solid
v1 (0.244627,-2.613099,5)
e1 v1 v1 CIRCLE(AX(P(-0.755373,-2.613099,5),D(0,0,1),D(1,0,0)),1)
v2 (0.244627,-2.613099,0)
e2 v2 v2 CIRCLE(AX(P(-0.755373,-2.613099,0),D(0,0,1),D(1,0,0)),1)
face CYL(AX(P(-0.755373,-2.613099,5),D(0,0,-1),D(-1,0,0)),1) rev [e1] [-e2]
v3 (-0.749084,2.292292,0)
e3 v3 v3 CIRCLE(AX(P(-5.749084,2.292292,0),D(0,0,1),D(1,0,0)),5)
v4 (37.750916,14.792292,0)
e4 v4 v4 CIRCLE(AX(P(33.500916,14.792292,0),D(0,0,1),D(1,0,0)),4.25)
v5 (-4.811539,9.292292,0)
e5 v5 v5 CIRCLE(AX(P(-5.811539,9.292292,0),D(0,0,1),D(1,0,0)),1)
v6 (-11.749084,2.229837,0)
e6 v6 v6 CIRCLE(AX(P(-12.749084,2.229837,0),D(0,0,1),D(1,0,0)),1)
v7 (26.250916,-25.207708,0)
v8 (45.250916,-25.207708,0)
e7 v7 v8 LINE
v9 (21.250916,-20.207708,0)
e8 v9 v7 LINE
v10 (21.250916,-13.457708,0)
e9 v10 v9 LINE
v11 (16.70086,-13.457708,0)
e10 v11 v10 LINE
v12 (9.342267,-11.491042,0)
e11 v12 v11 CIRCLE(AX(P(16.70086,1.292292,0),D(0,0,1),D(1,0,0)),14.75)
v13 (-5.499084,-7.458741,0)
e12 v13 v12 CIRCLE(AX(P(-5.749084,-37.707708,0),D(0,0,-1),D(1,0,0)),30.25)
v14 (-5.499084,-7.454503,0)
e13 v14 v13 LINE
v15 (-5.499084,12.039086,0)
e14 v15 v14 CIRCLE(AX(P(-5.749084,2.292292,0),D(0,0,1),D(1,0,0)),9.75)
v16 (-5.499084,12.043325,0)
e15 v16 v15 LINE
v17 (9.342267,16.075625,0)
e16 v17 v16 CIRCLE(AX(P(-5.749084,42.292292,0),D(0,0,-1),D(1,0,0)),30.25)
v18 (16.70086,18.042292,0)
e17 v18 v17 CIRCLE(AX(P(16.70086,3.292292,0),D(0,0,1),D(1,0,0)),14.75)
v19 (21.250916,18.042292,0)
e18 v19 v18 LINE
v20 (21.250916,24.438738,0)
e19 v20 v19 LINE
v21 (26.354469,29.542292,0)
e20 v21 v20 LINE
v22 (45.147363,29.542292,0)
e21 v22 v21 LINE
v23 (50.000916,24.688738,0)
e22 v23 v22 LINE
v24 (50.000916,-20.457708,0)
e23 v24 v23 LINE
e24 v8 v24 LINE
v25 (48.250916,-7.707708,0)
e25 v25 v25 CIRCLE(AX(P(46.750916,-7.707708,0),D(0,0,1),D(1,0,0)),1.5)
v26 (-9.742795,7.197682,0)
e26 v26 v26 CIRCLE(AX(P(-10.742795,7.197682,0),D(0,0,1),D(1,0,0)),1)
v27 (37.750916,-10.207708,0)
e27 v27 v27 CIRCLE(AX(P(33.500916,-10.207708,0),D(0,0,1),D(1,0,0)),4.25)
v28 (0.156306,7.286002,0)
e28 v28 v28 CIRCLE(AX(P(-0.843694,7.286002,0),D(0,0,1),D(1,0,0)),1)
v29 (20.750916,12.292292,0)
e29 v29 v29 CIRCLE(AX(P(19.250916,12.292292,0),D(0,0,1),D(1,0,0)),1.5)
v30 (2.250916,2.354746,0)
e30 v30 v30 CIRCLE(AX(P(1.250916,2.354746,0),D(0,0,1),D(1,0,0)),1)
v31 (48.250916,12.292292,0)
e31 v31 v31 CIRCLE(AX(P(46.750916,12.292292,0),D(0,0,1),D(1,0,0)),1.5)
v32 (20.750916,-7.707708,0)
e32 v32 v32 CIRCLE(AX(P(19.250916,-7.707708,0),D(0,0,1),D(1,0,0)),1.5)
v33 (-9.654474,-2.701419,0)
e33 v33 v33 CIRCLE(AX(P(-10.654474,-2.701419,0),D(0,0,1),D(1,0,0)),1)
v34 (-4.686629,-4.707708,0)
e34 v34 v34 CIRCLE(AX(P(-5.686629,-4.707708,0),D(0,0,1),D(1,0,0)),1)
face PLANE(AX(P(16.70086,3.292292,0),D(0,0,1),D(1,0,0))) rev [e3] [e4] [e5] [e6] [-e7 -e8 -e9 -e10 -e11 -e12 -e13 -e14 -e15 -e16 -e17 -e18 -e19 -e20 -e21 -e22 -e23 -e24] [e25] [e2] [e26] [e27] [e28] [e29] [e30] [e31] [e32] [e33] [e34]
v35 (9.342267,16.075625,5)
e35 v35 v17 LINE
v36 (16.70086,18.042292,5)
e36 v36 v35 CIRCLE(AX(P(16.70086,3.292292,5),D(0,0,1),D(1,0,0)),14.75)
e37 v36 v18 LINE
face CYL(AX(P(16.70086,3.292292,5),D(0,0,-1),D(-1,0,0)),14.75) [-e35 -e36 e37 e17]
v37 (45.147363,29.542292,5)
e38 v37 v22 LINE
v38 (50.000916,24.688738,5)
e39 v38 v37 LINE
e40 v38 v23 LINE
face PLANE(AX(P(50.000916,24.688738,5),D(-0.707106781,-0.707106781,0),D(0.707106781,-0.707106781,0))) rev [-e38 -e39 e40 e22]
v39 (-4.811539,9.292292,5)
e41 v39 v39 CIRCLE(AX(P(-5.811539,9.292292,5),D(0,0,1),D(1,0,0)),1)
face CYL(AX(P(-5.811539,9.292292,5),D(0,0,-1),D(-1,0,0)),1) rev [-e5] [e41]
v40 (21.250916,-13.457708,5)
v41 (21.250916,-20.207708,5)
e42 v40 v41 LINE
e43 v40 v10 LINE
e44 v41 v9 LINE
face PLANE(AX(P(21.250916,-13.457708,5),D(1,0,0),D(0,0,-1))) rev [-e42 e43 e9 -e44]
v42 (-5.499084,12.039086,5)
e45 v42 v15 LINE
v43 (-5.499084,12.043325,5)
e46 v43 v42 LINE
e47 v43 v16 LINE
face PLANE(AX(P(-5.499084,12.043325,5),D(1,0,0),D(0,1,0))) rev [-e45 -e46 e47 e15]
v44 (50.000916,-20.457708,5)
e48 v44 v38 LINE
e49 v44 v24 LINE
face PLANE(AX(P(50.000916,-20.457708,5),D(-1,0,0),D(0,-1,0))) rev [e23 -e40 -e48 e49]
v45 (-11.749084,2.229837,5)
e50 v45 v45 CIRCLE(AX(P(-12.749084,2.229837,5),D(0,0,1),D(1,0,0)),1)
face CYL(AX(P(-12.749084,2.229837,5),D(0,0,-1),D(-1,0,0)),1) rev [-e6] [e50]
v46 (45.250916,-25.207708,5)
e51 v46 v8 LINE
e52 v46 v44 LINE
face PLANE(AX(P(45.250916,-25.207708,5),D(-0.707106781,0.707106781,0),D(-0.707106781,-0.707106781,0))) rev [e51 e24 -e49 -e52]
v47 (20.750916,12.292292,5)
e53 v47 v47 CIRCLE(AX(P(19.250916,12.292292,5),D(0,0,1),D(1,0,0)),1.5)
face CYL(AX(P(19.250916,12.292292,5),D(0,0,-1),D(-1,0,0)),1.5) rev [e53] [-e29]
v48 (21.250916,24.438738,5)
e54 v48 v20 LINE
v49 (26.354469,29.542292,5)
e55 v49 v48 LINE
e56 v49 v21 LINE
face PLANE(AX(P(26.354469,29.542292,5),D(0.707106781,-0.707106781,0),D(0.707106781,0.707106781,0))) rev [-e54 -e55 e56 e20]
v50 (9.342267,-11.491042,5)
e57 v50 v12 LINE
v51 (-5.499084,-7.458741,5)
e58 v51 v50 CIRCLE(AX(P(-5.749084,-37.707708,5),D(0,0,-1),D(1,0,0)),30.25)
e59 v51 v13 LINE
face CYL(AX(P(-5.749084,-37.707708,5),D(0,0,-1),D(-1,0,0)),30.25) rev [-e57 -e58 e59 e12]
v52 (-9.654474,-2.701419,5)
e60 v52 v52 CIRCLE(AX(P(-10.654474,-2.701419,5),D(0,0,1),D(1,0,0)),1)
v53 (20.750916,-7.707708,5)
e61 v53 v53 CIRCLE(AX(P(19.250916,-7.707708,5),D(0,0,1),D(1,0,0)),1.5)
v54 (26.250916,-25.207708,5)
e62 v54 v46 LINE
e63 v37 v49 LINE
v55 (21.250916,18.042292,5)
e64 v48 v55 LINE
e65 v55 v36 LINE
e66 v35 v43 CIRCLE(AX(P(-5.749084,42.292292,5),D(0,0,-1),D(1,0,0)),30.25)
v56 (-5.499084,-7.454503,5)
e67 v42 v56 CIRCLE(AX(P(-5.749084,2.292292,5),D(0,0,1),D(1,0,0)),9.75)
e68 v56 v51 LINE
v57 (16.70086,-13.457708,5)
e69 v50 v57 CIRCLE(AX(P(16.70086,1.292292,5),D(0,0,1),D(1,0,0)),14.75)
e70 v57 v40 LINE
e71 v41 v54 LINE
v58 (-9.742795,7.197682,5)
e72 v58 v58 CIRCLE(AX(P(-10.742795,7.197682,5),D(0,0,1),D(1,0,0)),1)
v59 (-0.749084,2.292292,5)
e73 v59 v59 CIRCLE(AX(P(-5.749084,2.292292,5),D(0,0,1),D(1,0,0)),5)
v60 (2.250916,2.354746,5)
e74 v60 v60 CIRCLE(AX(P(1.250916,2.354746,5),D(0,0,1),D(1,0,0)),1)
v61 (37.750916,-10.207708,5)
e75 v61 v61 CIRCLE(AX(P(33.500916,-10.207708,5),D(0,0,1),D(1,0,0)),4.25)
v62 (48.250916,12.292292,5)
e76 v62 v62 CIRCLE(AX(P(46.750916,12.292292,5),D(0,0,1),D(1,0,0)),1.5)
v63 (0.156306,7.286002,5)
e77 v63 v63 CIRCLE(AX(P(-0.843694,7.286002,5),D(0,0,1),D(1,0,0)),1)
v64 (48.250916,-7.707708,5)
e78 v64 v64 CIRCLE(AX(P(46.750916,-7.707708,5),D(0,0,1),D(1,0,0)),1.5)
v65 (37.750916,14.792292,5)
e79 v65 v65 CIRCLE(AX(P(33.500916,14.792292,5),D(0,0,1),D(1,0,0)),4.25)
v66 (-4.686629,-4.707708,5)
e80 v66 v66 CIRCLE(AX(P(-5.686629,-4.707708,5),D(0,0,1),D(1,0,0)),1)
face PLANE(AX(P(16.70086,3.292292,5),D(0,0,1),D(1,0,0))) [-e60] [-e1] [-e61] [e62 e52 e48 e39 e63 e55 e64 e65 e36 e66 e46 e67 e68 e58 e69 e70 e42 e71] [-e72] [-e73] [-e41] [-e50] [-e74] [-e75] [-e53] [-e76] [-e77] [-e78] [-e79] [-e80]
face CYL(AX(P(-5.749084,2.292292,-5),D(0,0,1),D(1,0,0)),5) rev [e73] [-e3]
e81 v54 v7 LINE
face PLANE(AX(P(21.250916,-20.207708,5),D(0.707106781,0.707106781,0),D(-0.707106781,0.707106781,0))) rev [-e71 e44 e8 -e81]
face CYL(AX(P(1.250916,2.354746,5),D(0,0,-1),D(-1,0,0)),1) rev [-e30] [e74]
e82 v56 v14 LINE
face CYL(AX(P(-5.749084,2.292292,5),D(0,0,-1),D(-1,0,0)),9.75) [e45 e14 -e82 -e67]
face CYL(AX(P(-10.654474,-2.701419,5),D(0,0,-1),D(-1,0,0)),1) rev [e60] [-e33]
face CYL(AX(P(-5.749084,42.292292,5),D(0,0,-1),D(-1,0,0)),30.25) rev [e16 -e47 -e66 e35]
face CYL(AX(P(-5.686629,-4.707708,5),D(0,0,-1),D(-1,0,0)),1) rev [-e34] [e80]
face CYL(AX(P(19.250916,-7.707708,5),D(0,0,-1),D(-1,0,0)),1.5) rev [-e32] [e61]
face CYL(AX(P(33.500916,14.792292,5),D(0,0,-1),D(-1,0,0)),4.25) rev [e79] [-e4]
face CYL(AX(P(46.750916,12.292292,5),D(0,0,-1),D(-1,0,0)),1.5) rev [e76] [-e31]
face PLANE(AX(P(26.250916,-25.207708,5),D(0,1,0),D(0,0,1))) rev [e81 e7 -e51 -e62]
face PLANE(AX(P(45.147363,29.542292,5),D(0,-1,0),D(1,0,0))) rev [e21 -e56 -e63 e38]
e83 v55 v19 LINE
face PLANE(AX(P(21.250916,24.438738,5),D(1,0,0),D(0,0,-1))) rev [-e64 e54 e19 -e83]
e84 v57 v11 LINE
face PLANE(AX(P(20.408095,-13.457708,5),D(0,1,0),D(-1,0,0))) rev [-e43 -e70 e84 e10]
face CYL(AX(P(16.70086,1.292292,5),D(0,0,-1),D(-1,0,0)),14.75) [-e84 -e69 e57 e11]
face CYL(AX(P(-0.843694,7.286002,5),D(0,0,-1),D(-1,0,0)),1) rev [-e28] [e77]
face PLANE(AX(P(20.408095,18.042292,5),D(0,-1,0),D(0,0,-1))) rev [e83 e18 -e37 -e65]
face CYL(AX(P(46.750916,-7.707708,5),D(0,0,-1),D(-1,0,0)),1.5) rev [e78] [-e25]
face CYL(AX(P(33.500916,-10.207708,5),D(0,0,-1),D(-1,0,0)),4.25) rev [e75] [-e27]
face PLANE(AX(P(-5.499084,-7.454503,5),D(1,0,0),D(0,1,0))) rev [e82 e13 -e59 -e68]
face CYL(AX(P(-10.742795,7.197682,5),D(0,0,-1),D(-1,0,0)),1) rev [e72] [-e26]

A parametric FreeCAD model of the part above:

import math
import FreeCAD as App
import Part
import Sketcher
Q = App.Units.Quantity

doc = App.newDocument("Part")
params = doc.addObject("Spreadsheet::Sheet", "Params")
for row, (alias, value) in enumerate([
    ("sketch1_diameter", "2 mm"),
    ("sketch1_diameter2", "3 mm"),
    ("sketch1_diameter3", "8.5 mm"),
    ("sketch1_width", "19 mm"),
    ("sketch1_radius", "14.75 mm"),
    ("pad1_length", "5 mm"),
    ("sketch2_diameter", "10 mm"),
    ("pocket1_length", "10 mm"),
], start=1):
    params.set(f"A{row}", alias)
    params.set(f"B{row}", "=" + value)
    params.setAlias(f"B{row}", alias)

body = doc.addObject("PartDesign::Body", "Body")

sketch1 = body.newObject("Sketcher::SketchObject", "Sketch")
sketch1.AttachmentSupport = (doc.getObject("XY_Plane"), [""])
sketch1.MapMode = "FlatFace"
sketch1.addGeometry([
    Part.LineSegment(App.Vector(45.2509, -25.2077, 0), App.Vector(50.0009, -20.4577, 0)),
    Part.LineSegment(App.Vector(50.0009, -20.4577, 0), App.Vector(50.0009, 24.6887, 0)),
    Part.LineSegment(App.Vector(50.0009, 24.6887, 0), App.Vector(45.1474, 29.5423, 0)),
    Part.LineSegment(App.Vector(45.1474, 29.5423, 0), App.Vector(26.3545, 29.5423, 0)),
    Part.LineSegment(App.Vector(26.3545, 29.5423, 0), App.Vector(21.2509, 24.4387, 0)),
    Part.LineSegment(App.Vector(21.2509, 24.4387, 0), App.Vector(21.2509, 18.0423, 0)),
    Part.LineSegment(App.Vector(21.2509, 18.0423, 0), App.Vector(16.7009, 18.0423, 0)),
    Part.ArcOfCircle(Part.Circle(App.Vector(16.7009, 3.2923, 0), App.Vector(0, 0, 1), 14.75), math.radians(90), math.radians(120)),
    Part.ArcOfCircle(Part.Circle(App.Vector(-5.7491, 42.2923, 0), App.Vector(0, 0, 1), 30.25), math.radians(-90), math.radians(-60)),
    Part.LineSegment(App.Vector(-5.4991, 12.0433, 0), App.Vector(-5.4991, 12.0391, 0)),
    Part.ArcOfCircle(Part.Circle(App.Vector(-5.7491, 2.2923, 0), App.Vector(0, 0, 1), 9.75), math.radians(89), math.radians(271)),
    Part.LineSegment(App.Vector(-5.4991, -7.4545, 0), App.Vector(-5.4991, -7.4587, 0)),
    Part.ArcOfCircle(Part.Circle(App.Vector(-5.7491, -37.7077, 0), App.Vector(0, 0, 1), 30.25), math.radians(60), math.radians(90)),
    Part.ArcOfCircle(Part.Circle(App.Vector(16.7009, 1.2923, 0), App.Vector(0, 0, 1), 14.75), math.radians(-120), math.radians(-90)),
    Part.LineSegment(App.Vector(16.7009, -13.4577, 0), App.Vector(21.2509, -13.4577, 0)),
    Part.LineSegment(App.Vector(21.2509, -13.4577, 0), App.Vector(21.2509, -20.2077, 0)),
    Part.LineSegment(App.Vector(21.2509, -20.2077, 0), App.Vector(26.2509, -25.2077, 0)),
    Part.LineSegment(App.Vector(26.2509, -25.2077, 0), App.Vector(45.2509, -25.2077, 0)),
    Part.Circle(App.Vector(-10.6545, -2.7014, 0), App.Vector(0, 0, 1), 1),
    Part.Circle(App.Vector(-5.6866, -4.7077, 0), App.Vector(0, 0, 1), 1),
    Part.Circle(App.Vector(-0.7554, -2.6131, 0), App.Vector(0, 0, 1), 1),
    Part.Circle(App.Vector(-12.7491, 2.2298, 0), App.Vector(0, 0, 1), 1),
    Part.Circle(App.Vector(19.2509, -7.7077, 0), App.Vector(0, 0, 1), 1.5),
    Part.Circle(App.Vector(33.5009, -10.2077, 0), App.Vector(0, 0, 1), 4.25),
    Part.Circle(App.Vector(46.7509, -7.7077, 0), App.Vector(0, 0, 1), 1.5),
    Part.Circle(App.Vector(-5.7491, 2.2923, 0), App.Vector(0, 0, 1), 1.5),
    Part.Circle(App.Vector(1.2509, 2.3547, 0), App.Vector(0, 0, 1), 1),
    Part.Circle(App.Vector(-10.7428, 7.1977, 0), App.Vector(0, 0, 1), 1),
    Part.Circle(App.Vector(-0.8437, 7.286, 0), App.Vector(0, 0, 1), 1),
    Part.Circle(App.Vector(-5.8115, 9.2923, 0), App.Vector(0, 0, 1), 1),
    Part.Circle(App.Vector(19.2509, 12.2923, 0), App.Vector(0, 0, 1), 1.5),
    Part.Circle(App.Vector(33.5009, 14.7923, 0), App.Vector(0, 0, 1), 4.25),
    Part.Circle(App.Vector(46.7509, 12.2923, 0), App.Vector(0, 0, 1), 1.5),
], False)
sketch1.addConstraint([
    Sketcher.Constraint("Coincident", 0, 2, 1, 1),
    Sketcher.Constraint("Coincident", 1, 2, 2, 1),
    Sketcher.Constraint("Coincident", 2, 2, 3, 1),
    Sketcher.Constraint("Coincident", 3, 2, 4, 1),
    Sketcher.Constraint("Coincident", 4, 2, 5, 1),
    Sketcher.Constraint("Coincident", 5, 2, 6, 1),
    Sketcher.Constraint("Tangent", 6, 2, 7, 1),
    Sketcher.Constraint("Tangent", 7, 2, 8, 2),
    Sketcher.Constraint("Coincident", 8, 1, 9, 1),
    Sketcher.Constraint("Coincident", 9, 2, 10, 1),
    Sketcher.Constraint("Coincident", 10, 2, 11, 1),
    Sketcher.Constraint("Coincident", 11, 2, 12, 2),
    Sketcher.Constraint("Tangent", 12, 1, 13, 1),
    Sketcher.Constraint("Tangent", 13, 2, 14, 1),
    Sketcher.Constraint("Coincident", 14, 2, 15, 1),
    Sketcher.Constraint("Coincident", 15, 2, 16, 1),
    Sketcher.Constraint("Coincident", 16, 2, 17, 1),
    Sketcher.Constraint("Coincident", 17, 2, 0, 1),
    Sketcher.Constraint("Vertical", 1),
    Sketcher.Constraint("Horizontal", 3),
    Sketcher.Constraint("Vertical", 5),
    Sketcher.Constraint("Horizontal", 6),
    Sketcher.Constraint("Vertical", 9),
    Sketcher.Constraint("Vertical", 11),
    Sketcher.Constraint("Horizontal", 14),
    Sketcher.Constraint("Vertical", 15),
    Sketcher.Constraint("Horizontal", 17),
    Sketcher.Constraint("Coincident", 25, 3, 10, 3),
    Sketcher.Constraint("Equal", 8, 12),
    Sketcher.Constraint("Equal", 7, 13),
    Sketcher.Constraint("Equal", 18, 19),
    Sketcher.Constraint("Equal", 19, 20),
    Sketcher.Constraint("Equal", 20, 21),
    Sketcher.Constraint("Equal", 22, 24),
    Sketcher.Constraint("Equal", 24, 25),
    Sketcher.Constraint("Equal", 21, 26),
    Sketcher.Constraint("Equal", 26, 27),
    Sketcher.Constraint("Equal", 27, 28),
    Sketcher.Constraint("Equal", 28, 29),
    Sketcher.Constraint("Equal", 25, 30),
    Sketcher.Constraint("Equal", 23, 31),
    Sketcher.Constraint("Equal", 30, 32),
    Sketcher.Constraint("Perpendicular", 0, 2),
    Sketcher.Constraint("Perpendicular", 2, 4),
    Sketcher.Constraint("Perpendicular", 4, 16),
    Sketcher.Constraint("Horizontal", 22, 3, 24, 3),
    Sketcher.Constraint("Horizontal", 30, 3, 32, 3),
    Sketcher.Constraint("Vertical", 8, 3, 10, 3),
    Sketcher.Constraint("Vertical", 10, 3, 12, 3),
    Sketcher.Constraint("Vertical", 7, 3, 13, 3),
    Sketcher.Constraint("Vertical", 22, 3, 30, 3),
    Sketcher.Constraint("Vertical", 23, 3, 31, 3),
    Sketcher.Constraint("Vertical", 24, 3, 32, 3),
    Sketcher.Constraint("Vertical", 9, 2, 10, 2),
    Sketcher.Constraint("Vertical", 5, 2, 14, 2),
    Sketcher.Constraint("Equal", 9, 11),
    Sketcher.Constraint("Diameter", 18, 2.0),
    Sketcher.Constraint("Diameter", 22, 3.0),
    Sketcher.Constraint("Diameter", 23, 8.5),
    Sketcher.Constraint("DistanceX", 17, 1, 17, 2, 19.0),
    Sketcher.Constraint("Angle", 0, Q("45 deg")),
    Sketcher.Constraint("Radius", 7, 14.75),
    Sketcher.Constraint("Radius", 8, 30.25),
    Sketcher.Constraint("Radius", 10, 9.75),
    Sketcher.Constraint("DistanceY", 7, 3, 8, 3, 39.0),
    Sketcher.Constraint("DistanceY", 10, 3, 7, 3, 1.0),
    Sketcher.Constraint("DistanceY", 19, 3, 10, 3, 7.0),
    Sketcher.Constraint("DistanceX", 21, 3, 10, 3, 7.0),
    Sketcher.Constraint("DistanceY", 22, 3, 13, 3, 9.0),
    Sketcher.Constraint("DistanceX", 10, 3, 22, 3, 25.0),
    Sketcher.Constraint("DistanceX", 10, 3, 26, 3, 7.0),
    Sketcher.Constraint("DistanceY", 10, 3, 29, 3, 7.0),
    Sketcher.Constraint("DistanceY", 7, 3, 30, 3, 9.0),
    Sketcher.Constraint("DistanceY", 23, 3, 31, 3, 25.0),
    Sketcher.Constraint("DistanceX", 30, 3, 4, 2, 2.0),
    Sketcher.Constraint("DistanceY", 15, 2, 23, 3, 10.0),
    Sketcher.Constraint("DistanceX", 15, 2, 16, 2, 5.0),
    Sketcher.Constraint("DistanceY", 15, 2, 15, 1, 6.75),
    Sketcher.Constraint("DistanceX", 22, 3, 24, 3, 27.5),
    Sketcher.Constraint("DistanceX", 23, 3, 0, 2, 16.5),
    Sketcher.Constraint("DistanceY", 5, 2, 3, 2, 11.5),
    Sketcher.Constraint("DistanceX", 22, 3, 23, 3, 14.25),
    Sketcher.Constraint("DistanceX", 10, 3, 8, 1, 0.25),
    Sketcher.Constraint("DistanceY", 20, 3, -1, 1, 2.613099),
    Sketcher.Constraint("DistanceX", 18, 3, 20, 3, 9.899101),
    Sketcher.Constraint("DistanceY", 18, 3, 27, 3, 9.899101),
    Sketcher.Constraint("DistanceY", 20, 3, 28, 3, 9.899101),
    Sketcher.Constraint("DistanceX", 27, 3, 28, 3, 9.899101),
    Sketcher.Constraint("Distance", 2, 6.863961),
    Sketcher.Constraint("DistanceX", 3, 2, 3, 1, 18.792893),
    Sketcher.Constraint("DistanceX", -1, 1, 7, 3, 16.70086),
    Sketcher.Constraint("DistanceY", -1, 1, 7, 3, 3.292292),
    Sketcher.Constraint("DistanceY", 18, 3, -1, 1, 2.701419),
    Sketcher.Constraint("DistanceX", 19, 3, -1, 1, 5.686629),
    Sketcher.Constraint("DistanceX", 29, 3, -1, 1, 5.811539),
    Sketcher.Constraint("DistanceX", 18, 3, 10, 3, 4.90539),
    Sketcher.Constraint("DistanceX", 21, 3, 27, 3, 2.006289),
    Sketcher.Constraint("DistanceY", -1, 1, 21, 3, 2.229837),
    Sketcher.Constraint("DistanceY", -1, 1, 26, 3, 2.354746),
])
sketch1.setExpression("Constraints[56]", "Params.sketch1_diameter")
sketch1.setExpression("Constraints[57]", "Params.sketch1_diameter2")
sketch1.setExpression("Constraints[58]", "Params.sketch1_diameter3")
sketch1.setExpression("Constraints[59]", "Params.sketch1_width")
sketch1.setExpression("Constraints[61]", "Params.sketch1_radius")
pad1 = body.newObject("PartDesign::Pad", "Pad")
pad1.Profile = sketch1
pad1.setExpression("Length", "Params.pad1_length")

sketch2 = body.newObject("Sketcher::SketchObject", "Sketch001")
sketch2.AttachmentSupport = (doc.getObject("XY_Plane"), [""])
sketch2.MapMode = "FlatFace"
sketch2.AttachmentOffset = App.Placement(App.Vector(0, 0, 5), App.Rotation())
sketch2.addGeometry(Part.Circle(App.Vector(-6, 2, 0), App.Vector(0, 0, 1), 5), False)
sketch2.addConstraint([
    Sketcher.Constraint("Diameter", 0, 10.0),
    Sketcher.Constraint("DistanceY", -1, 1, 0, 3, 2.292292),
    Sketcher.Constraint("DistanceX", 0, 3, -1, 1, 5.749084),
])
sketch2.setExpression("Constraints[0]", "Params.sketch2_diameter")
pocket1 = body.newObject("PartDesign::Pocket", "Pocket")
pocket1.Profile = sketch2
pocket1.setExpression("Length", "Params.pocket1_length")

doc.recompute()
